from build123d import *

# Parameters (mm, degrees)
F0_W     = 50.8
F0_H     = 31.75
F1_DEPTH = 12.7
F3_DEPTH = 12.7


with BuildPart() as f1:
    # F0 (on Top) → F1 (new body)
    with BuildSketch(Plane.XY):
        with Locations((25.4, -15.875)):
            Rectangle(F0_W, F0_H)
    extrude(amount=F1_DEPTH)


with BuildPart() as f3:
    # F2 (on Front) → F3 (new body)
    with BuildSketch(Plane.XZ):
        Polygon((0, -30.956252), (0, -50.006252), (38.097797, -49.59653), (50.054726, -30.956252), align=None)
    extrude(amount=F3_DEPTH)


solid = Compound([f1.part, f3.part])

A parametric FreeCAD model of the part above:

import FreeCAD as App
import Part
import Sketcher
from FreeCAD import Vector
Q = App.Units.Quantity

doc = App.newDocument("Part")
body = doc.addObject("PartDesign::Body", "Body")

# Sketch on XY plane
sketch1 = body.newObject("Sketcher::SketchObject", "Sketch")
sketch1.AttachmentSupport = (doc.getObject("XY_Plane"), [""])
sketch1.MapMode = "FlatFace"
sketch1.addGeometry(Part.LineSegment(Vector(0, 0, 0), Vector(0, -31.75, 0)), False)
sketch1.addGeometry(Part.LineSegment(Vector(0, -31.75, 0), Vector(50.8, -31.75, 0)), False)
sketch1.addGeometry(Part.LineSegment(Vector(50.8, -31.75, 0), Vector(50.8, 0, 0)), False)
sketch1.addGeometry(Part.LineSegment(Vector(50.8, 0, 0), Vector(0, 0, 0)), False)
sketch1.addConstraint(Sketcher.Constraint("Coincident", 0, 2, 1, 1))
sketch1.addConstraint(Sketcher.Constraint("Coincident", 1, 2, 2, 1))
sketch1.addConstraint(Sketcher.Constraint("Coincident", 2, 2, 3, 1))
sketch1.addConstraint(Sketcher.Constraint("Coincident", 3, 2, 0, 1))
sketch1.addConstraint(Sketcher.Constraint("Vertical", 0))
sketch1.addConstraint(Sketcher.Constraint("Horizontal", 1))
sketch1.addConstraint(Sketcher.Constraint("Vertical", 2))
sketch1.addConstraint(Sketcher.Constraint("Horizontal", 3))
sketch1.addConstraint(Sketcher.Constraint("Coincident", 3, 2, -1, 1))
sketch1.addConstraint(Sketcher.Constraint("DistanceX", 1, 1, 1, 2, Q("2 in")))
sketch1.addConstraint(Sketcher.Constraint("DistanceY", 0, 2, 0, 1, Q("1.25 in")))
pad1 = body.newObject("PartDesign::Pad", "Pad")
pad1.Profile = sketch1
pad1.Length = Q("0.5 in")
body2 = doc.addObject("PartDesign::Body", "Body001")

# Sketch on XZ plane
sketch2 = body2.newObject("Sketcher::SketchObject", "Sketch001")
sketch2.AttachmentSupport = (doc.getObject("XZ_Plane001"), [""])
sketch2.MapMode = "FlatFace"
sketch2.addGeometry(Part.LineSegment(Vector(0, -30.956252, 0), Vector(0, -50.006252, 0)), False)
sketch2.addGeometry(Part.LineSegment(Vector(0, -50.006252, 0), Vector(38.097797, -49.59653, 0)), False)
sketch2.addGeometry(Part.LineSegment(Vector(38.097797, -49.59653, 0), Vector(50.054726, -30.956252, 0)), False)
sketch2.addGeometry(Part.LineSegment(Vector(50.054726, -30.956252, 0), Vector(0, -30.956252, 0)), False)
sketch2.addConstraint(Sketcher.Constraint("Coincident", 0, 2, 1, 1))
sketch2.addConstraint(Sketcher.Constraint("Coincident", 1, 2, 2, 1))
sketch2.addConstraint(Sketcher.Constraint("Coincident", 2, 2, 3, 1))
sketch2.addConstraint(Sketcher.Constraint("Coincident", 3, 2, 0, 1))
sketch2.addConstraint(Sketcher.Constraint("Vertical", 0))
sketch2.addConstraint(Sketcher.Constraint("Horizontal", 3))
sketch2.addConstraint(Sketcher.Constraint("PointOnObject", 0, 2, -2))
sketch2.addConstraint(Sketcher.Constraint("Distance", 1, Q("1.5 in")))
sketch2.addConstraint(Sketcher.Constraint("DistanceY", 0, 2, 0, 1, Q("0.75 in")))
sketch2.addConstraint(Sketcher.Constraint("DistanceY", 0, 2, -1, 1, Q("1.9687501 in")))
sketch2.addConstraint(Sketcher.Constraint("Distance", 2, 22.145612))
sketch2.addConstraint(Sketcher.Constraint("DistanceX", 3, 2, 3, 1, 50.054726))
pad2 = body2.newObject("PartDesign::Pad", "Pad001")
pad2.Profile = sketch2
pad2.Length = Q("0.5 in")

doc.recompute()
